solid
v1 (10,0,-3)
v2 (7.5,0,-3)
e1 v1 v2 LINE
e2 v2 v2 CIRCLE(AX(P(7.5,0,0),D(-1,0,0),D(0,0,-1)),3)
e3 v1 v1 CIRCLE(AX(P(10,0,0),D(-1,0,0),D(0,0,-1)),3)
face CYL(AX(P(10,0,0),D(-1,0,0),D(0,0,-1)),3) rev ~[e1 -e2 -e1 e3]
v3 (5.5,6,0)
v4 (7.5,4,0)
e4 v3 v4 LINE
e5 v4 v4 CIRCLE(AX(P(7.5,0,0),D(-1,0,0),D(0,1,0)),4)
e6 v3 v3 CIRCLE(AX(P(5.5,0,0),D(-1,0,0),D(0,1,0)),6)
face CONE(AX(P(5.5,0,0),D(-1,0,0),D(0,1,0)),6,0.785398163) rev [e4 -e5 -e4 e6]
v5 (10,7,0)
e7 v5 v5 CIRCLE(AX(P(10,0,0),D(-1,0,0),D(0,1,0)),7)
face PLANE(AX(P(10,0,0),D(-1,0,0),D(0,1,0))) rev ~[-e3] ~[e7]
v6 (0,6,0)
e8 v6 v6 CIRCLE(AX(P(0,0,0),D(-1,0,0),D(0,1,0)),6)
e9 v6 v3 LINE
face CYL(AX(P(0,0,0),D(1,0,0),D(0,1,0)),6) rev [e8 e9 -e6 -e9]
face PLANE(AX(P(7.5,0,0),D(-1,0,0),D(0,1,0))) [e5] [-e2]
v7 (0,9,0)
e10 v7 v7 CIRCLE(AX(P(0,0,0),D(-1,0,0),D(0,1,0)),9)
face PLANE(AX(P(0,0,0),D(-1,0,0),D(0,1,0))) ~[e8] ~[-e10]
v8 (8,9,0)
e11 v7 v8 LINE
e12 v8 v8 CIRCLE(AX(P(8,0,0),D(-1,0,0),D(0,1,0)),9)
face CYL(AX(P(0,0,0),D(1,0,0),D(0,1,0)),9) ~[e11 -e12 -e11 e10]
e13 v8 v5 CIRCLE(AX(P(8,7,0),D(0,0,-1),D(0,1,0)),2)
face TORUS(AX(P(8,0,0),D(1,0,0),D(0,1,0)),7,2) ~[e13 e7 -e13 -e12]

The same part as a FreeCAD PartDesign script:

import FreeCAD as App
import Part
import Sketcher

V = App.Vector
Q = App.Units.Quantity


def edges_at(feature, points):
    """Names of the edges that pass closest to the given points."""
    edges = feature.Shape.Edges
    near = lambda p: min(range(len(edges)), key=lambda i: edges[i].distToShape(Part.Vertex(*p))[0])
    return sorted({f"Edge{near(p) + 1}" for p in points})

doc = App.newDocument("Part")
body = doc.addObject("PartDesign::Body", "Body")

# Sketch on XY plane
sketch1 = body.newObject("Sketcher::SketchObject", "Sketch")
sketch1.AttachmentSupport = (doc.getObject("XY_Plane"), [""])
sketch1.MapMode = "FlatFace"
sketch1.addGeometry([
    Part.LineSegment(V(0, 9, 0), V(0, 6, 0)),  # 0
    Part.LineSegment(V(0, 6, 0), V(5.5, 6, 0)),  # 1
    Part.LineSegment(V(5.5, 6, 0), V(7.5, 4, 0)),  # 2
    Part.LineSegment(V(7.5, 4, 0), V(7.5, 0, 0)),  # 3
    Part.LineSegment(V(7.5, 0, 0), V(10, 0, 0)),  # 4
    Part.LineSegment(V(10, 0, 0), V(10, 9, 0)),  # 5
    Part.LineSegment(V(10, 9, 0), V(0, 9, 0)),  # 6
], False)
sketch1.addConstraint([
    Sketcher.Constraint("Coincident", 0, 2, 1, 1),
    Sketcher.Constraint("Coincident", 1, 2, 2, 1),
    Sketcher.Constraint("Coincident", 2, 2, 3, 1),
    Sketcher.Constraint("Coincident", 3, 2, 4, 1),
    Sketcher.Constraint("Coincident", 4, 2, 5, 1),
    Sketcher.Constraint("Coincident", 5, 2, 6, 1),
    Sketcher.Constraint("Coincident", 6, 2, 0, 1),
    Sketcher.Constraint("Vertical", 0),
    Sketcher.Constraint("Horizontal", 1),
    Sketcher.Constraint("Vertical", 3),
    Sketcher.Constraint("Horizontal", 4),
    Sketcher.Constraint("Vertical", 5),
    Sketcher.Constraint("Horizontal", 6),
    Sketcher.Constraint("PointOnObject", 0, 2, -2),
    Sketcher.Constraint("PointOnObject", 3, 2, -1),
    Sketcher.Constraint("DistanceX", 6, 2, 6, 1, Q("10 mm")),
    Sketcher.Constraint("Angle", 2, Q("-45 deg")),
    Sketcher.Constraint("DistanceX", 4, 1, 4, 2, Q("2.5 mm")),
    Sketcher.Constraint("DistanceX", 1, 2, 2, 2, Q("2 mm")),
    Sketcher.Constraint("DistanceY", 0, 2, 0, 1, Q("3 mm")),
    Sketcher.Constraint("DistanceY", 3, 2, 3, 1, Q("4 mm")),
])
revolution = body.newObject("PartDesign::Revolution", "Revolution")
revolution.Profile = sketch1
revolution.ReferenceAxis = (sketch1, ["H_Axis"])
revolution.Angle = 360

# Sketch on YZ plane
sketch2 = body.newObject("Sketcher::SketchObject", "Sketch001")
sketch2.AttachmentSupport = (doc.getObject("YZ_Plane"), [""])
sketch2.MapMode = "FlatFace"
sketch2.AttachmentOffset = App.Placement(V(0, 0, 10), App.Rotation())
sketch2.addGeometry(Part.Circle(V(0, 0, 0), V(0, 0, 1), 3), False)
sketch2.addConstraint([
    Sketcher.Constraint("Coincident", 0, 3, -1, 1),
    Sketcher.Constraint("Diameter", 0, Q("6 mm")),
])
doc.recompute()
hole = body.newObject("PartDesign::Hole", "Hole")
hole.Profile = sketch2
hole.ThreadType = "None"
hole.Diameter = 6
hole.DepthType = "ThroughAll"
doc.recompute()

fillet = body.newObject("PartDesign::Fillet", "Fillet")
fillet.Base = (hole, edges_at(hole, [(10, -9, 0)]))
fillet.Radius = 2

doc.recompute()
